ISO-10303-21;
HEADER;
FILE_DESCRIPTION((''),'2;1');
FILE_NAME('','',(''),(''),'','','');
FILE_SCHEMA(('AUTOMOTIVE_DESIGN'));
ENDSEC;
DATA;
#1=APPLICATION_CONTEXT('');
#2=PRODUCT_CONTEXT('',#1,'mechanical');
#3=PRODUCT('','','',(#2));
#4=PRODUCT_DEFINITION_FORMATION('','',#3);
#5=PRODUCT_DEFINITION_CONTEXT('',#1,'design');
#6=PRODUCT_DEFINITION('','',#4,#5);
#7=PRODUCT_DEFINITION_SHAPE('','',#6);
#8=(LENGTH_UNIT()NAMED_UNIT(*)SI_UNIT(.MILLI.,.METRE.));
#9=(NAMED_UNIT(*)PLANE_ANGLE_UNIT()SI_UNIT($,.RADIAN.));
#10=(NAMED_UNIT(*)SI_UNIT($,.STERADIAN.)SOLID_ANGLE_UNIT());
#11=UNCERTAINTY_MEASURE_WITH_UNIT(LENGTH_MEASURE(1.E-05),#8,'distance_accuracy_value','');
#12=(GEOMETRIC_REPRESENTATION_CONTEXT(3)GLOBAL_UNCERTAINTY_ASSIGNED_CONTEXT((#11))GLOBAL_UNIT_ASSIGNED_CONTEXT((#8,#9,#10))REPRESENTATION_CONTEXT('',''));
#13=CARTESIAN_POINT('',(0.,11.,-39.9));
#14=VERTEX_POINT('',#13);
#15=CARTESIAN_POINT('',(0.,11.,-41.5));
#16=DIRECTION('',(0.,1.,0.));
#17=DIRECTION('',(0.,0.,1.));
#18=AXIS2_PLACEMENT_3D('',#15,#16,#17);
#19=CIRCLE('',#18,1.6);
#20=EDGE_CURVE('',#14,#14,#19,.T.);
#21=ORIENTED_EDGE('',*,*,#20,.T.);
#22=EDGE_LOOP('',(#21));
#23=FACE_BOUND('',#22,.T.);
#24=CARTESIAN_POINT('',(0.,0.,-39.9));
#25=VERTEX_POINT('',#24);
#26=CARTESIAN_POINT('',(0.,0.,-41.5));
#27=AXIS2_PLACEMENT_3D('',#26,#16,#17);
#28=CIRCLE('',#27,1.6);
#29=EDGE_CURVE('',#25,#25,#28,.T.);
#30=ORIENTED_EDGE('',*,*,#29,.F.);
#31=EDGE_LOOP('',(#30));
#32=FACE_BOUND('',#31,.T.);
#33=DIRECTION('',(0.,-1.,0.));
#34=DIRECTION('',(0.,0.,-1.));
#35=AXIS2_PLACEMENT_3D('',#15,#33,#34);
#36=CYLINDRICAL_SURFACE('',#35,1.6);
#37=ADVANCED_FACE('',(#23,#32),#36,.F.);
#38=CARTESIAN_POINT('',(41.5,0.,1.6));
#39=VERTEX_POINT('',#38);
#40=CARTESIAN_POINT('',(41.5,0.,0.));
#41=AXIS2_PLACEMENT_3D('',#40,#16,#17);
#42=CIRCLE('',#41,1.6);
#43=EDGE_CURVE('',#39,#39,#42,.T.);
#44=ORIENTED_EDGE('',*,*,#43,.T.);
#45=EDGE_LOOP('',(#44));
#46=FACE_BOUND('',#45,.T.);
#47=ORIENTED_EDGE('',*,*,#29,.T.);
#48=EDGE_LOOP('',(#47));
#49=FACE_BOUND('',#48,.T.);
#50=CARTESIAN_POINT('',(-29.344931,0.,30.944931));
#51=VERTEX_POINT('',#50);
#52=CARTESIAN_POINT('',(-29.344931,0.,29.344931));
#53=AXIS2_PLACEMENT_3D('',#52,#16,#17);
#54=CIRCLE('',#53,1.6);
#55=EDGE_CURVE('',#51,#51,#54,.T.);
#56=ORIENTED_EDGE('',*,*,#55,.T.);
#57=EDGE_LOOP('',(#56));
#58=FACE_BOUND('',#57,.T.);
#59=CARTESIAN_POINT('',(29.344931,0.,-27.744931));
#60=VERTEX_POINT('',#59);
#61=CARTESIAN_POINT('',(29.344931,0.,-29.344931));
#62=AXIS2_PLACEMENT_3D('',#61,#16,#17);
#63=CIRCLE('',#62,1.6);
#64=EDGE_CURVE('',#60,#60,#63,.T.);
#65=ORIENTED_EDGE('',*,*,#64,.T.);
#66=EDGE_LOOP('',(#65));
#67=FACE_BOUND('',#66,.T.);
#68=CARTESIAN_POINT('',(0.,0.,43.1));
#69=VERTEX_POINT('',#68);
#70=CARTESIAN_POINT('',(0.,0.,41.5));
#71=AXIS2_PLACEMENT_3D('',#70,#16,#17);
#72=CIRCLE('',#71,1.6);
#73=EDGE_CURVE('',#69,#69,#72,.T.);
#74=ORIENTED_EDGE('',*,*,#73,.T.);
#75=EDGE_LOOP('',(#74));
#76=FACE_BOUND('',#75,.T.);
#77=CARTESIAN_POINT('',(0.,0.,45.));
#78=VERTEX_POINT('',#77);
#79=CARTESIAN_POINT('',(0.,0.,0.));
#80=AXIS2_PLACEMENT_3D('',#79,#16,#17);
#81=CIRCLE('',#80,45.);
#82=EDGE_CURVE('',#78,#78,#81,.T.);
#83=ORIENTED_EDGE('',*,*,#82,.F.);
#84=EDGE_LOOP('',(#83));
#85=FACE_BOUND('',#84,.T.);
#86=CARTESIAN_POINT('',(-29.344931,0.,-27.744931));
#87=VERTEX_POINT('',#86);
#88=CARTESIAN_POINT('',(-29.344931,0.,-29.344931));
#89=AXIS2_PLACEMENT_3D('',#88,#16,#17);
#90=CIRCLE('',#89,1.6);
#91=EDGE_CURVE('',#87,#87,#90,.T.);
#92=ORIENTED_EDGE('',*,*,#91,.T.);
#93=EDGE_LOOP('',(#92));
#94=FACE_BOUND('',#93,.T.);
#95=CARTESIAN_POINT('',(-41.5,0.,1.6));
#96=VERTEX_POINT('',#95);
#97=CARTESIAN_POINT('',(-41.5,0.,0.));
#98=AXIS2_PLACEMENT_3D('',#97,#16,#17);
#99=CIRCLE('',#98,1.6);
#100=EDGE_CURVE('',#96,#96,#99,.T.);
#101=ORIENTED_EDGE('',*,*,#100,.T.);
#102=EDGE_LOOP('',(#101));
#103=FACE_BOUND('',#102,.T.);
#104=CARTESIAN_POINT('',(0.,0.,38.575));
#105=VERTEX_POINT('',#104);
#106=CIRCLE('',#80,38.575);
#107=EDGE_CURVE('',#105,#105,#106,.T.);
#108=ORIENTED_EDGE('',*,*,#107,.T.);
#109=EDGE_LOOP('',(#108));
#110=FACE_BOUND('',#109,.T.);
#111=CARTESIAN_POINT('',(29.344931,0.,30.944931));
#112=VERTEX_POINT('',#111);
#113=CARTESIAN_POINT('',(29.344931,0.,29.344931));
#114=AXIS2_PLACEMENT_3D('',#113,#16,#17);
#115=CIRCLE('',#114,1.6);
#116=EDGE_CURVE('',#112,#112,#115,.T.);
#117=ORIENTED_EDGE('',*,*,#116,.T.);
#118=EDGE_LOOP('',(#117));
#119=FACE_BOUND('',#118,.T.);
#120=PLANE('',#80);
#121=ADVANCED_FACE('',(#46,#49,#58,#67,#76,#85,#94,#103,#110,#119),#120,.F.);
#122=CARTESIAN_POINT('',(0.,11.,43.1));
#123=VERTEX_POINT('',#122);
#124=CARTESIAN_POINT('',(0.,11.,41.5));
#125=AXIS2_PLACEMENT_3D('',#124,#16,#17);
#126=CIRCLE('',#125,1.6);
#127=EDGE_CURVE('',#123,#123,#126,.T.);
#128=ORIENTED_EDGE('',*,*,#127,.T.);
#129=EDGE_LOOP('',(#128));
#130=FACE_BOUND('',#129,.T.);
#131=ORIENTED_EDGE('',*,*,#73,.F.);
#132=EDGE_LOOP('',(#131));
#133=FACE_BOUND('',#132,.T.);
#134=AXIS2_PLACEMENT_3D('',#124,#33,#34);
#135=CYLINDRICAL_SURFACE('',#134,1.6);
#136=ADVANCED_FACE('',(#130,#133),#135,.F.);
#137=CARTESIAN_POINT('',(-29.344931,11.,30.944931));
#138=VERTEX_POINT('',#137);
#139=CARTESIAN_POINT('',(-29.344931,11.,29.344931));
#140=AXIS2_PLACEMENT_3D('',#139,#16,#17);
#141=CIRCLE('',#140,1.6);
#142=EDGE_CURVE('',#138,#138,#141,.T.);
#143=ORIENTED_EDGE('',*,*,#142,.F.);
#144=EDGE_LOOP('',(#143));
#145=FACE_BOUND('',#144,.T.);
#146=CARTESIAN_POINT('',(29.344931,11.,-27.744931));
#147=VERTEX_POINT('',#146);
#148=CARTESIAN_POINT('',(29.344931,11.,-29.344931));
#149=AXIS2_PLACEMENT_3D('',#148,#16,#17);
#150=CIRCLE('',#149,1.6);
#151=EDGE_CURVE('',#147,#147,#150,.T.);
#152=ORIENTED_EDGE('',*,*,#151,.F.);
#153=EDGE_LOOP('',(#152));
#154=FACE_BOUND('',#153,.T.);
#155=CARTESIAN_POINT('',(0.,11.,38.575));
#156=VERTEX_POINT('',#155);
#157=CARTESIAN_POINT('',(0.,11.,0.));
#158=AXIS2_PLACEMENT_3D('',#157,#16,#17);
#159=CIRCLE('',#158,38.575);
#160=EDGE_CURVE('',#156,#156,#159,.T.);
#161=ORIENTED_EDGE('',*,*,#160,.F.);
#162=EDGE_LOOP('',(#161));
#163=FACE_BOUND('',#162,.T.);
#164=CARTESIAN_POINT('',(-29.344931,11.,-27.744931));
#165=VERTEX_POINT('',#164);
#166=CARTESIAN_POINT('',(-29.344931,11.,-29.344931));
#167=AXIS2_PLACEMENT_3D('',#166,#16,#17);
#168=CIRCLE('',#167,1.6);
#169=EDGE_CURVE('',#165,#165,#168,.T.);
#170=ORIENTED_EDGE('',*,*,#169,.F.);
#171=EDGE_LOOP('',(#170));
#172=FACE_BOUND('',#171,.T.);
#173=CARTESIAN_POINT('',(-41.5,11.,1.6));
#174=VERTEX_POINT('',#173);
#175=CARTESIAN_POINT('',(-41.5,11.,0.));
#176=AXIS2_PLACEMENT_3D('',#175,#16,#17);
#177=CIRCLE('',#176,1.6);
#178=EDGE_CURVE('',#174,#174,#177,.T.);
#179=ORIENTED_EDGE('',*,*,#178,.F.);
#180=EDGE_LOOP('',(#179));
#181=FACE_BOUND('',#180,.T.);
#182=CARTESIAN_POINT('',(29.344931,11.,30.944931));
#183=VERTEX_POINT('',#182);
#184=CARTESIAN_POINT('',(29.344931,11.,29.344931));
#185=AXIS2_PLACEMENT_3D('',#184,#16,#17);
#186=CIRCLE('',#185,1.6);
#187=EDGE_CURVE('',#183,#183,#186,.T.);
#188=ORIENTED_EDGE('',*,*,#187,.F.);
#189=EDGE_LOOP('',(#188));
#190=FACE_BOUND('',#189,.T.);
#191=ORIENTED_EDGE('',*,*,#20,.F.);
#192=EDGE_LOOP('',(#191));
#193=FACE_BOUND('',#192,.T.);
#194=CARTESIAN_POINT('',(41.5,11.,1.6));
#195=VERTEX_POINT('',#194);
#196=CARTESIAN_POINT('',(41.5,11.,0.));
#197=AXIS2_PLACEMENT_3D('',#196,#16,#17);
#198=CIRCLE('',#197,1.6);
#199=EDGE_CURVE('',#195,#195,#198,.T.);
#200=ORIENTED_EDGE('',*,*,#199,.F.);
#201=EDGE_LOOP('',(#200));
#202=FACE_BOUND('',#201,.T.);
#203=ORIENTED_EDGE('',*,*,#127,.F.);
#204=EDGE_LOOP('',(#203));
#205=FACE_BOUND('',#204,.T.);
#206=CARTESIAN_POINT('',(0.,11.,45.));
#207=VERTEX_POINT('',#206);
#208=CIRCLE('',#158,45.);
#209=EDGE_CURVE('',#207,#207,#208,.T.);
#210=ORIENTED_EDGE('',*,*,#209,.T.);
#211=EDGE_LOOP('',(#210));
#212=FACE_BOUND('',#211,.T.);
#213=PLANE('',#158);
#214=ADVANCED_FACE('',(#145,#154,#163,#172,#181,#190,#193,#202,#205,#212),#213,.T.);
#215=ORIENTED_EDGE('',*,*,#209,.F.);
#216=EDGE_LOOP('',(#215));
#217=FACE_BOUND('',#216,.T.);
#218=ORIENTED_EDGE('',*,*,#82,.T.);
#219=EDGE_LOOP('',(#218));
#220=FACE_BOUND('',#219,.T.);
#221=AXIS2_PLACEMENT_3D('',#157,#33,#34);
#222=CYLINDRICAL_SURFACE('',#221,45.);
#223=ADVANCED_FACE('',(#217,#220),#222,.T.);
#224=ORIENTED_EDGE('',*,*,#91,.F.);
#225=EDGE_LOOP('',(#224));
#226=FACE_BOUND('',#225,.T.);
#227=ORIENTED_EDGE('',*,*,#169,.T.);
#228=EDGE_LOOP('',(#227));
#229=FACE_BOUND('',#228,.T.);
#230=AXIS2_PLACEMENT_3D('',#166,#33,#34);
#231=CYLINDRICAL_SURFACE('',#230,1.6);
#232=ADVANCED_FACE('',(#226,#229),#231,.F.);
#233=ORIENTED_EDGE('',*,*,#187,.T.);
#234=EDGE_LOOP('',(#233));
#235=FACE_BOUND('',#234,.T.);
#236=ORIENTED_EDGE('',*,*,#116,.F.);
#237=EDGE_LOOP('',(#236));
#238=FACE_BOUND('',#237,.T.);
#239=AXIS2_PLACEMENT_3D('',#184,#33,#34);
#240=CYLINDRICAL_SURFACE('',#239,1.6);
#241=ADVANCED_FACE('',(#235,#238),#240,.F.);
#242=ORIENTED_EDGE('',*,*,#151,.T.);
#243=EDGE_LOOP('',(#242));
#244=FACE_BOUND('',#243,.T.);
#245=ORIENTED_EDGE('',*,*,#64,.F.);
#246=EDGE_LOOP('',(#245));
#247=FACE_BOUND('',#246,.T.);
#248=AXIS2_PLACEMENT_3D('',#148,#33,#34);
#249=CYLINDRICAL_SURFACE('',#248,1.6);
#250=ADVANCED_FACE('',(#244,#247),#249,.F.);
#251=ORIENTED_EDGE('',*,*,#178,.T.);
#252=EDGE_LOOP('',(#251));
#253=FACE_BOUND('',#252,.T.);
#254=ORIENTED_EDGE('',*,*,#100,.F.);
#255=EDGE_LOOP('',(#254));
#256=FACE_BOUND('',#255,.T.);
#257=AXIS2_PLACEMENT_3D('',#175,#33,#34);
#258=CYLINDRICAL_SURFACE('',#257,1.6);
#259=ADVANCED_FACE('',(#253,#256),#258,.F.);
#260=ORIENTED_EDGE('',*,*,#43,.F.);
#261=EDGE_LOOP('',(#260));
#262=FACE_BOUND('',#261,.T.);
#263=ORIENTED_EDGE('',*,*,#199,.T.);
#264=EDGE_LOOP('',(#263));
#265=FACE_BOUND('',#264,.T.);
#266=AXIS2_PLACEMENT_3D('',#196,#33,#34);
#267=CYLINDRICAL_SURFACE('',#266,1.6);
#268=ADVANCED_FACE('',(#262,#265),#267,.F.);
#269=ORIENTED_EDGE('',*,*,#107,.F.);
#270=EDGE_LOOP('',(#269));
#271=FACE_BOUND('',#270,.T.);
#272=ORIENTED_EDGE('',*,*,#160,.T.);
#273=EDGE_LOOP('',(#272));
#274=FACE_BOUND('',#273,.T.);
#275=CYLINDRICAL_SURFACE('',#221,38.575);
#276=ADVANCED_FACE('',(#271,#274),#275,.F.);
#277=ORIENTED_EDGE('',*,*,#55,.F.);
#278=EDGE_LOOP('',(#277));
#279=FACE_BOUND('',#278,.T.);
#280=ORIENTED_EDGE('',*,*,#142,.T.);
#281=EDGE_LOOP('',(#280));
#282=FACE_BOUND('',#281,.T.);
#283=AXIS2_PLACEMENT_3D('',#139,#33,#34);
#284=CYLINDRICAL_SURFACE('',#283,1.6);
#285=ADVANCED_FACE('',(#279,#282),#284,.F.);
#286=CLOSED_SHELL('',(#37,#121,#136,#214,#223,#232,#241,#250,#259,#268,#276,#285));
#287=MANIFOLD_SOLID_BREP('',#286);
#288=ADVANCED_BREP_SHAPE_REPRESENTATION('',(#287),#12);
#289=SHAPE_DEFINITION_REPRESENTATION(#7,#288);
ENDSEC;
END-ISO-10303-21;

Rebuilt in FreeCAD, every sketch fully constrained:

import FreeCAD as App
import Part
import Sketcher
from FreeCAD import Vector

doc = App.newDocument("Part")
body = doc.addObject("PartDesign::Body", "Body")

# Sketch on XZ plane
sketch1 = body.newObject("Sketcher::SketchObject", "Sketch")
sketch1.AttachmentSupport = (doc.getObject("XZ_Plane"), [""])
sketch1.MapMode = "FlatFace"
sketch1.addGeometry([
    Part.Circle(Vector(0, 0, 0), Vector(0, 0, 1), 45),  # 0
    Part.Circle(Vector(-29.344931, -29.344931, 0), Vector(0, 0, 1), 1.6),  # 1
    Part.Circle(Vector(0, -41.5, 0), Vector(0, 0, 1), 1.6),  # 2
    Part.Circle(Vector(-41.5, 0, 0), Vector(0, 0, 1), 1.6),  # 3
    Part.Circle(Vector(-29.344931, 29.344931, 0), Vector(0, 0, 1), 1.6),  # 4
    Part.Circle(Vector(29.344931, -29.344931, 0), Vector(0, 0, 1), 1.6),  # 5
    Part.Circle(Vector(41.5, 0, 0), Vector(0, 0, 1), 1.6),  # 6
    Part.Circle(Vector(0, 0, 0), Vector(0, 0, 1), 38.575),  # 7
    Part.Circle(Vector(0, 41.5, 0), Vector(0, 0, 1), 1.6),  # 8
    Part.Circle(Vector(29.344931, 29.344931, 0), Vector(0, 0, 1), 1.6),  # 9
], False)
sketch1.addConstraint([
    Sketcher.Constraint("Coincident", 0, 3, -1, 1),
    Sketcher.Constraint("Coincident", 7, 3, -1, 1),
    Sketcher.Constraint("Equal", 1, 2),
    Sketcher.Constraint("Equal", 2, 3),
    Sketcher.Constraint("Equal", 3, 4),
    Sketcher.Constraint("Equal", 4, 5),
    Sketcher.Constraint("Equal", 5, 6),
    Sketcher.Constraint("Equal", 6, 8),
    Sketcher.Constraint("Equal", 8, 9),
    Sketcher.Constraint("Symmetric", 4, 3, 5, 3, -1, 1),
    Sketcher.Constraint("Symmetric", 3, 3, 6, 3, -1, 1),
    Sketcher.Constraint("Symmetric", 2, 3, 8, 3, -1, 1),
    Sketcher.Constraint("Symmetric", 1, 3, 9, 3, -1, 1),
    Sketcher.Constraint("Symmetric", 1, 3, 5, 3, -2),
    Sketcher.Constraint("PointOnObject", 2, 3, -2),
    Sketcher.Constraint("PointOnObject", 3, 3, -1),
    Sketcher.Constraint("Diameter", 0, 90.0),
    Sketcher.Constraint("Diameter", 1, 3.2),
    Sketcher.Constraint("Diameter", 7, 77.15),
    Sketcher.Constraint("DistanceY", 2, 3, -1, 1, 41.5),
    Sketcher.Constraint("DistanceX", 3, 3, -1, 1, 41.5),
    Sketcher.Constraint("DistanceX", 1, 3, -1, 1, 29.344931),
    Sketcher.Constraint("DistanceY", 1, 3, -1, 1, 29.344931),
])
pad1 = body.newObject("PartDesign::Pad", "Pad")
pad1.Profile = sketch1
pad1.Length = 11
pad1.Reversed = True

doc.recompute()
